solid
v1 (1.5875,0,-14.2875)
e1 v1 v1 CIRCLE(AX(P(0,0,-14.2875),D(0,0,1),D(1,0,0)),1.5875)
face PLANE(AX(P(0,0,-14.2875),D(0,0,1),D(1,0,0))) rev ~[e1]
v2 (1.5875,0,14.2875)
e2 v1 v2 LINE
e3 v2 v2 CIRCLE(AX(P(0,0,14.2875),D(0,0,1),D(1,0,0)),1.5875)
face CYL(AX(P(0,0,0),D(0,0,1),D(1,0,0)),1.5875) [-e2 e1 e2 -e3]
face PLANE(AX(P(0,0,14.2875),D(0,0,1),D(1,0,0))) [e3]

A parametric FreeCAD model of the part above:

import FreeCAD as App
import Part
import Sketcher
from FreeCAD import Vector
Q = App.Units.Quantity

doc = App.newDocument("Part")
body = doc.addObject("PartDesign::Body", "Body")

sketch1 = body.newObject("Sketcher::SketchObject", "Sketch")
sketch1.AttachmentSupport = (doc.getObject("XY_Plane"), [""])
sketch1.MapMode = "FlatFace"
sketch1.addGeometry(Part.Circle(Vector(0, 0, 0), Vector(0, 0, 1), 1.5875), False)
sketch1.addConstraint(Sketcher.Constraint("Coincident", 0, 3, -1, 1))
sketch1.addConstraint(Sketcher.Constraint("Diameter", 0, Q("0.125 in")))
pad1 = body.newObject("PartDesign::Pad", "Pad")
pad1.Profile = sketch1
pad1.Length = Q("1.125 in")
pad1.Midplane = True

doc.recompute()
